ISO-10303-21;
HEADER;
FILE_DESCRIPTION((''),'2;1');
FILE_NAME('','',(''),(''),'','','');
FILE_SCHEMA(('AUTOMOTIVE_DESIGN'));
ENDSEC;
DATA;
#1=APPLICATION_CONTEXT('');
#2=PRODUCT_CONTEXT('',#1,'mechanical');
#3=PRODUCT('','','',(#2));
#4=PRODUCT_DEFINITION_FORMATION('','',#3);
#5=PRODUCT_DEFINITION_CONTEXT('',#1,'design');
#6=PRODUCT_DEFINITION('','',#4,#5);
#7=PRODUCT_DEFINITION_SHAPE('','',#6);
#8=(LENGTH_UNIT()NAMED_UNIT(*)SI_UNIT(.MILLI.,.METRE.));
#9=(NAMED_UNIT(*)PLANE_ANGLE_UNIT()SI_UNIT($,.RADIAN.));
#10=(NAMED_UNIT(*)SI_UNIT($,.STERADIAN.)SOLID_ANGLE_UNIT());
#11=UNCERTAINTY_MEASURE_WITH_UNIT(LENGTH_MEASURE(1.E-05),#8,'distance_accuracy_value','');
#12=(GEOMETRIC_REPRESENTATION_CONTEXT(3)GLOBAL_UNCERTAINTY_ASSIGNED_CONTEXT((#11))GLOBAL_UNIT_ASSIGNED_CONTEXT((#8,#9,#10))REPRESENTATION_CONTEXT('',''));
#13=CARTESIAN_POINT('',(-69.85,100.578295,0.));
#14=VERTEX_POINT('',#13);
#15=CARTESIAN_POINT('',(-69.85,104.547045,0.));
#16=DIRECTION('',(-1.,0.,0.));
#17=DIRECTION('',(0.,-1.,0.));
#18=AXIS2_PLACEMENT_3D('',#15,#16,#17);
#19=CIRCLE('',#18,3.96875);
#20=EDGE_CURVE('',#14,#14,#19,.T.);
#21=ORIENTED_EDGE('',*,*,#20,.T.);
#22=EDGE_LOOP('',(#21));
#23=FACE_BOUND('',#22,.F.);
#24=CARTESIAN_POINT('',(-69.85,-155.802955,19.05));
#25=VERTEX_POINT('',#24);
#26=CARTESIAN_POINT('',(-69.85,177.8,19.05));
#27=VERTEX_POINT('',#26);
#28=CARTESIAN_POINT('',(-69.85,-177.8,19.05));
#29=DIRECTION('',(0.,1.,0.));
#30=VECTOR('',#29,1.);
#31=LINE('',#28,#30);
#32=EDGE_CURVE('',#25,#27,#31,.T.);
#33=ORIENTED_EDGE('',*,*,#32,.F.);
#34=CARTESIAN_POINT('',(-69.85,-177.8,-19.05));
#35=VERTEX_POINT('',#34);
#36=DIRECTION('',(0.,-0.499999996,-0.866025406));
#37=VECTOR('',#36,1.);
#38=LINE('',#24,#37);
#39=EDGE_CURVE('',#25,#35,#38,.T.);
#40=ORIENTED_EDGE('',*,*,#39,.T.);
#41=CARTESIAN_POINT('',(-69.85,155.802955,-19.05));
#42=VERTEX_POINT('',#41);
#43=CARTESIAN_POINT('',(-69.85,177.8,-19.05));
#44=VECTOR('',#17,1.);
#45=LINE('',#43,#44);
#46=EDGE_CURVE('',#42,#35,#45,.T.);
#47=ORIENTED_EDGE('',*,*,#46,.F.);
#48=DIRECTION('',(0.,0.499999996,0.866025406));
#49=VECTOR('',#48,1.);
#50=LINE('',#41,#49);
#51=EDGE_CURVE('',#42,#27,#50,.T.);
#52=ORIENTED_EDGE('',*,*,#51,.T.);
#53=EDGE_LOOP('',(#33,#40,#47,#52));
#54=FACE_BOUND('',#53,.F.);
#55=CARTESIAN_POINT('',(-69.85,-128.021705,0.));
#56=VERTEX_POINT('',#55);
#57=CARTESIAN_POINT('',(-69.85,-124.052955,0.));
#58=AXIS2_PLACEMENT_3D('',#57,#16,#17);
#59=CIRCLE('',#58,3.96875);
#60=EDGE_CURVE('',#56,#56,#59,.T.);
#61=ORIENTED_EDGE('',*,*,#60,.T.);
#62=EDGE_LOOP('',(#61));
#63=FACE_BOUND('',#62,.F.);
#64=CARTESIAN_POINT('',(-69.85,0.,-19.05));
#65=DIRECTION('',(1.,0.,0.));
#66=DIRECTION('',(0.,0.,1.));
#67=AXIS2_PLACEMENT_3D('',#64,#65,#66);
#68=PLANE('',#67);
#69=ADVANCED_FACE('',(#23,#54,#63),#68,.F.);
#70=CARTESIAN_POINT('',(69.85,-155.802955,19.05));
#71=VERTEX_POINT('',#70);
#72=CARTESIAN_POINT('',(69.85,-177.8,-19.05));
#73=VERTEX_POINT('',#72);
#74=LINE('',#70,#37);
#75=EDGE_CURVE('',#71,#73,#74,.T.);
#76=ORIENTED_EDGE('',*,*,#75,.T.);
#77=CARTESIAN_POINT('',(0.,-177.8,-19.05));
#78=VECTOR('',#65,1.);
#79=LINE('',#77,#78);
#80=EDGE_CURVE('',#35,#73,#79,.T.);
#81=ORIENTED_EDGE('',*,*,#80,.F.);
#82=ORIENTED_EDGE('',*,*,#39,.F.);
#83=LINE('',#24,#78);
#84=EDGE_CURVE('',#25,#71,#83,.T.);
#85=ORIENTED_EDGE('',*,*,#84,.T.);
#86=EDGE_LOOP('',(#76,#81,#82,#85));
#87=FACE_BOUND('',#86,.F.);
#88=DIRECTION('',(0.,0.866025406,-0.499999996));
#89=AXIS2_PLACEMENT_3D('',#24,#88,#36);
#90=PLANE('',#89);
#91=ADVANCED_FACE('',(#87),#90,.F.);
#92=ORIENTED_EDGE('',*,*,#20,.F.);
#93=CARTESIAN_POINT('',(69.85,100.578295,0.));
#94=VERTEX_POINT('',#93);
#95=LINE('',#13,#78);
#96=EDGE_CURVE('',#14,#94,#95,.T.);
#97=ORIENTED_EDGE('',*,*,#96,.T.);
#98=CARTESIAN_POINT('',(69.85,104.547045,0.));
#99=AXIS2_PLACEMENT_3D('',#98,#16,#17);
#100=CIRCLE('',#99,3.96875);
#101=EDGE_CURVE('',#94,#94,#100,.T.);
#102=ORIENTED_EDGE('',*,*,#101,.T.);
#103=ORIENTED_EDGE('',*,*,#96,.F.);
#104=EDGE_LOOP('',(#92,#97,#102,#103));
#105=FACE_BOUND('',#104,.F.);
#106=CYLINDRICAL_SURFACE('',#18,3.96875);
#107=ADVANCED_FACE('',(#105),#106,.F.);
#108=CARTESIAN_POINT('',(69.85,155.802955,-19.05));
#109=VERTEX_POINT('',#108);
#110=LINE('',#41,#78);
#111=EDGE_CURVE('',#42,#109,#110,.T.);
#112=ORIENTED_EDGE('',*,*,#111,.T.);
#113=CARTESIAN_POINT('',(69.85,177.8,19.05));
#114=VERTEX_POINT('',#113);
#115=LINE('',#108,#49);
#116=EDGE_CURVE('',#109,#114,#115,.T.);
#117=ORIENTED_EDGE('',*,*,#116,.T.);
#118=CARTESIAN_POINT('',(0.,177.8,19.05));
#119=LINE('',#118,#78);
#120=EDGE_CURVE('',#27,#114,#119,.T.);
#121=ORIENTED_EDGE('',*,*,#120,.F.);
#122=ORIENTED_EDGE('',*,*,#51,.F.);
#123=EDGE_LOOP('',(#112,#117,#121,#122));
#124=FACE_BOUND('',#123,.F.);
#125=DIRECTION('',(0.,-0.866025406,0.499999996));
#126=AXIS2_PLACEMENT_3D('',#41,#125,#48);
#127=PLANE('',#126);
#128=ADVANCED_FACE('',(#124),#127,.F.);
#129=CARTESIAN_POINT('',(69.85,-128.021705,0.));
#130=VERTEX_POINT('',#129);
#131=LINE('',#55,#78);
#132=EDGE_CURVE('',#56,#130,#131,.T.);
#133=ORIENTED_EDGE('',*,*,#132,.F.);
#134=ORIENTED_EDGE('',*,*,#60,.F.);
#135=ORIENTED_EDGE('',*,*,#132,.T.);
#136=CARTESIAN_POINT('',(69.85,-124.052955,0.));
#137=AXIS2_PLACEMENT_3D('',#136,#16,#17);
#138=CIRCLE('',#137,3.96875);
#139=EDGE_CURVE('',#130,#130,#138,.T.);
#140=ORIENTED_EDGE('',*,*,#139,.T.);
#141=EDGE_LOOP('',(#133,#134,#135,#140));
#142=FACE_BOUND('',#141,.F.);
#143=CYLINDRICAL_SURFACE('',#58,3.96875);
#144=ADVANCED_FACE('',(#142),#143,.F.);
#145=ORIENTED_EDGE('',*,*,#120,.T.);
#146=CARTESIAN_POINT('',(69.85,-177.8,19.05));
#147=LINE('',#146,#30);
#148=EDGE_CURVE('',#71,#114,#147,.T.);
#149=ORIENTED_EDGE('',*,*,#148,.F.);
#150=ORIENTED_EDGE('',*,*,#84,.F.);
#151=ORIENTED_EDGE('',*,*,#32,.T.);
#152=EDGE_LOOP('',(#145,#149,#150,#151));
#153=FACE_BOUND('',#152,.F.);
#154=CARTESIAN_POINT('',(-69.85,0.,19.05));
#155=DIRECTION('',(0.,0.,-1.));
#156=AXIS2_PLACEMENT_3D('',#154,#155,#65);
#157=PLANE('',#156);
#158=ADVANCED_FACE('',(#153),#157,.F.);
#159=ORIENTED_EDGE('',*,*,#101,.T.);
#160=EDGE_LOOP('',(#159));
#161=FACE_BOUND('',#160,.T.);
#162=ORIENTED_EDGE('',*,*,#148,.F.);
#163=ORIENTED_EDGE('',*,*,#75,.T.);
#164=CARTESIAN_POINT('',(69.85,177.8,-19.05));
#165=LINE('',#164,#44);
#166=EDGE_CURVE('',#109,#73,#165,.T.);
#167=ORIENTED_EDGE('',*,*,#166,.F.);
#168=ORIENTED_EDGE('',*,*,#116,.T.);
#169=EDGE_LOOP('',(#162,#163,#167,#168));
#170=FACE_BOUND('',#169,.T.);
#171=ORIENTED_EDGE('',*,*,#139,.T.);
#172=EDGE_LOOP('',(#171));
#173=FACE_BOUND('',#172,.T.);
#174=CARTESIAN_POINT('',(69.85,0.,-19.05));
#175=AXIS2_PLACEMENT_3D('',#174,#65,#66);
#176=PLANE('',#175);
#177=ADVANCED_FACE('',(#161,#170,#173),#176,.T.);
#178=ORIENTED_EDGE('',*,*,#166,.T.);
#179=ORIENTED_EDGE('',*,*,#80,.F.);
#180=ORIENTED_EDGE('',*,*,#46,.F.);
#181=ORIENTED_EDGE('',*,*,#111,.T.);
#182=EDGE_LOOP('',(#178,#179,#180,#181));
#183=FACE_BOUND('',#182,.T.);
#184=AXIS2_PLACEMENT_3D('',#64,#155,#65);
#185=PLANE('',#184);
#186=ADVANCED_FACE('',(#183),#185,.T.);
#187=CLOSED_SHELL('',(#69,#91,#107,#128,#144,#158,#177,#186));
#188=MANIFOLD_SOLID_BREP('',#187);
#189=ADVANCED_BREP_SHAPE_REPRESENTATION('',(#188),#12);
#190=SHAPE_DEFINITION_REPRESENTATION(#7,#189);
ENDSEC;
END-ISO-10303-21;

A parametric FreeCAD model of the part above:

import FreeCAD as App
import Part
import Sketcher

V = App.Vector
Q = App.Units.Quantity

doc = App.newDocument("Part")
params = doc.addObject("Spreadsheet::Sheet", "Params")
for row, (alias, value) in enumerate([
    ("sketch1_width", "5.5 in"),
    ("sketch1_height", "1.5 in"),
    ("pad1_length", "7 in"),
    ("pad1_length2", "7 in"),
    ("sketch2_height", "1.5 in"),
    ("sketch3_diameter", "0.3125 in"),
], start=1):
    params.set(f"A{row}", alias)
    params.set(f"B{row}", "=" + value)
    params.setAlias(f"B{row}", alias)

body = doc.addObject("PartDesign::Body", "Body")

# Sketch on XZ plane
sketch1 = doc.addObject("Sketcher::SketchObject", "Sketch")
body.addObject(sketch1)
sketch1.AttachmentSupport = (doc.XZ_Plane, [""])
sketch1.MapMode = "FlatFace"
sketch1.addGeometry([
    Part.LineSegment(V(-69.85, 19.05, 0), V(-69.85, -19.05, 0)),
    Part.LineSegment(V(-69.85, -19.05, 0), V(69.85, -19.05, 0)),
    Part.LineSegment(V(69.85, -19.05, 0), V(69.85, 19.05, 0)),
    Part.LineSegment(V(69.85, 19.05, 0), V(-69.85, 19.05, 0)),
], False)
sketch1.addConstraint([
    Sketcher.Constraint("Coincident", 0, 2, 1, 1),
    Sketcher.Constraint("Coincident", 1, 2, 2, 1),
    Sketcher.Constraint("Coincident", 2, 2, 3, 1),
    Sketcher.Constraint("Coincident", 3, 2, 0, 1),
    Sketcher.Constraint("Vertical", 0),
    Sketcher.Constraint("Horizontal", 1),
    Sketcher.Constraint("Vertical", 2),
    Sketcher.Constraint("Horizontal", 3),
    Sketcher.Constraint("Symmetric", 0, 2, 2, 2, -1, 1),
    Sketcher.Constraint("DistanceX", 1, 1, 1, 2, Q("5.5 in")),
    Sketcher.Constraint("DistanceY", 0, 2, 0, 1, Q("1.5 in")),
])
sketch1.setExpression("Constraints[9]", "Params.sketch1_width")
sketch1.setExpression("Constraints[10]", "Params.sketch1_height")
pad1 = doc.addObject("PartDesign::Pad", "Pad")
body.addObject(pad1)
pad1.Profile = sketch1
pad1.Type = "TwoLengths"
pad1.setExpression("Length", "Params.pad1_length")
pad1.setExpression("Length2", "Params.pad1_length2")

# Sketch on YZ plane
sketch2 = doc.addObject("Sketcher::SketchObject", "Sketch001")
body.addObject(sketch2)
sketch2.AttachmentSupport = (doc.YZ_Plane, [""])
sketch2.MapMode = "FlatFace"
sketch2.AttachmentOffset = App.Placement(V(0, 0, -2.75 * 25.4), App.Rotation())
sketch2.addGeometry([
    Part.LineSegment(V(155.802955, -19.05, 0), V(177.8, 19.05, 0)),  # 0
    Part.LineSegment(V(177.8, 19.05, 0), V(177.8, -19.05, 0)),  # 1
    Part.LineSegment(V(177.8, -19.05, 0), V(155.802955, -19.05, 0)),  # 2
    Part.LineSegment(V(-177.8, -19.05, 0), V(-177.8, 19.05, 0)),  # 3
    Part.LineSegment(V(-177.8, 19.05, 0), V(-155.802955, 19.05, 0)),  # 4
    Part.LineSegment(V(-155.802955, 19.05, 0), V(-177.8, -19.05, 0)),  # 5
], False)
sketch2.addConstraint([
    Sketcher.Constraint("Coincident", 0, 2, 1, 1),
    Sketcher.Constraint("Coincident", 1, 2, 2, 1),
    Sketcher.Constraint("Coincident", 2, 2, 0, 1),
    Sketcher.Constraint("Coincident", 3, 2, 4, 1),
    Sketcher.Constraint("Coincident", 4, 2, 5, 1),
    Sketcher.Constraint("Coincident", 5, 2, 3, 1),
    Sketcher.Constraint("Vertical", 1),
    Sketcher.Constraint("Horizontal", 2),
    Sketcher.Constraint("Vertical", 3),
    Sketcher.Constraint("Horizontal", 4),
    Sketcher.Constraint("Symmetric", 1, 2, 3, 2, -1, 1),
    Sketcher.Constraint("Parallel", 0, 5),
    Sketcher.Constraint("Horizontal", 0, 2, 3, 2),
    Sketcher.Constraint("Horizontal", 2, 2, 5, 2),
    Sketcher.Constraint("DistanceY", 1, 2, 1, 1, Q("1.5 in")),
    Sketcher.Constraint("DistanceX", -1, 1, 0, 2, Q("7 in")),
    Sketcher.Constraint("Angle", 0, Q("60 deg")),
])
sketch2.setExpression("Constraints[14]", "Params.sketch2_height")
pocket1 = doc.addObject("PartDesign::Pocket", "Pocket")
body.addObject(pocket1)
pocket1.Profile = sketch2
pocket1.Type = "ThroughAll"
pocket1.Reversed = True

# Sketch on YZ plane
sketch3 = doc.addObject("Sketcher::SketchObject", "Sketch002")
body.addObject(sketch3)
sketch3.AttachmentSupport = (doc.YZ_Plane, [""])
sketch3.MapMode = "FlatFace"
sketch3.AttachmentOffset = App.Placement(V(0, 0, -2.75 * 25.4), App.Rotation())
sketch3.addGeometry([
    Part.Circle(V(104.547045, 0, 0), V(0, 0, 1), 3.96875),
    Part.Circle(V(-124.052955, 0, 0), V(0, 0, 1), 3.96875),
], False)
sketch3.addConstraint([
    Sketcher.Constraint("Equal", 0, 1),
    Sketcher.Constraint("PointOnObject", 0, 3, -1),
    Sketcher.Constraint("PointOnObject", 1, 3, -1),
    Sketcher.Constraint("Diameter", 0, Q("0.3125 in")),
    Sketcher.Constraint("DistanceX", 1, 3, 0, 3, Q("9 in")),
    Sketcher.Constraint("DistanceX", -1, 1, 0, 3, Q("104.547045 mm")),
])
sketch3.setExpression("Constraints[3]", "Params.sketch3_diameter")
pocket2 = doc.addObject("PartDesign::Pocket", "Pocket001")
body.addObject(pocket2)
pocket2.Profile = sketch3
pocket2.Type = "ThroughAll"
pocket2.Reversed = True

doc.recompute()
